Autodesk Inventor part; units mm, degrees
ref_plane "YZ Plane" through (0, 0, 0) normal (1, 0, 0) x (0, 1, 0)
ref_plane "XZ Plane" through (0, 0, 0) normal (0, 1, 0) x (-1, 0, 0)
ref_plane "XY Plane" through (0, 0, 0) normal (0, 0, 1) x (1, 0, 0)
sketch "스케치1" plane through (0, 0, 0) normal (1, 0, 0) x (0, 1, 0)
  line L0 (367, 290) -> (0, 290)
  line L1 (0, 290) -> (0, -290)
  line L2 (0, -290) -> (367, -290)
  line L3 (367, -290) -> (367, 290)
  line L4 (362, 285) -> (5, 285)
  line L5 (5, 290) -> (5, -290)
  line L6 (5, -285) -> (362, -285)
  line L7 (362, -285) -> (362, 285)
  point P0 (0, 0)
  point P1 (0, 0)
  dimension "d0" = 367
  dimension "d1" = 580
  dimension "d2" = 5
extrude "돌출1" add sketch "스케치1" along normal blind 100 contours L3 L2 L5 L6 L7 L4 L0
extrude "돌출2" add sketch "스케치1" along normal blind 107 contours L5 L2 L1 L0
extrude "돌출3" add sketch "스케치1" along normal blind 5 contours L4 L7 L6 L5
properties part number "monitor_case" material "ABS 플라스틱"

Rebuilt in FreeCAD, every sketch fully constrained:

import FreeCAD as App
import Part
import Sketcher
from FreeCAD import Vector


def add_polygon(sketch, points):
    """Adds a closed chain of lines whose ends are joined by coincident constraints."""
    first, n = sketch.GeometryCount, len(points)
    for a, b in zip(points, points[1:] + points[:1]):
        sketch.addGeometry(Part.LineSegment(App.Vector(*a, 0), App.Vector(*b, 0)), False)
    for i in range(n):
        sketch.addConstraint(Sketcher.Constraint("Coincident", first + i, 2, first + (i + 1) % n, 1))

doc = App.newDocument("Part")
body = doc.addObject("PartDesign::Body", "Body")

# Sketch on YZ plane
sketch1 = body.newObject("Sketcher::SketchObject", "Sketch")
sketch1.AttachmentSupport = (doc.getObject("YZ_Plane"), [""])
sketch1.MapMode = "FlatFace"
add_polygon(sketch1, [(367, -290), (367, 290), (5, 290), (5, 285), (362, 285), (362, -285), (5, -285), (5, -290)])  # lines 0-7
sketch1.addConstraint(Sketcher.Constraint("Vertical", 0))
sketch1.addConstraint(Sketcher.Constraint("Horizontal", 1))
sketch1.addConstraint(Sketcher.Constraint("Vertical", 2))
sketch1.addConstraint(Sketcher.Constraint("Horizontal", 3))
sketch1.addConstraint(Sketcher.Constraint("Vertical", 4))
sketch1.addConstraint(Sketcher.Constraint("Horizontal", 5))
sketch1.addConstraint(Sketcher.Constraint("Vertical", 6))
sketch1.addConstraint(Sketcher.Constraint("Horizontal", 7))
sketch1.addConstraint(Sketcher.Constraint("Symmetric", 2, 2, 5, 2, -1))
sketch1.addConstraint(Sketcher.Constraint("Equal", 2, 6))
sketch1.addConstraint(Sketcher.Constraint("DistanceY", 0, 1, 0, 2, 580.0))
sketch1.addConstraint(Sketcher.Constraint("DistanceY", 2, 2, 2, 1, 5.0))
sketch1.addConstraint(Sketcher.Constraint("DistanceX", -1, 1, 0, 2, 367.0))
sketch1.addConstraint(Sketcher.Constraint("DistanceX", -1, 1, 1, 2, 5.0))
sketch1.addConstraint(Sketcher.Constraint("DistanceX", 3, 2, 0, 2, 5.0))
pad1 = body.newObject("PartDesign::Pad", "Pad")
pad1.Profile = sketch1
pad1.Length = 100

# Sketch on YZ plane
sketch2 = body.newObject("Sketcher::SketchObject", "Sketch001")
sketch2.AttachmentSupport = (doc.getObject("YZ_Plane"), [""])
sketch2.MapMode = "FlatFace"
add_polygon(sketch2, [(5, -290), (5, 290), (0, 290), (0, -290)])  # lines 0-3
sketch2.addConstraint(Sketcher.Constraint("Vertical", 0))
sketch2.addConstraint(Sketcher.Constraint("Horizontal", 1))
sketch2.addConstraint(Sketcher.Constraint("Vertical", 2))
sketch2.addConstraint(Sketcher.Constraint("Horizontal", 3))
sketch2.addConstraint(Sketcher.Constraint("Symmetric", 1, 2, 2, 2, -1, 1))
sketch2.addConstraint(Sketcher.Constraint("DistanceX", 1, 2, 1, 1, 5.0))
sketch2.addConstraint(Sketcher.Constraint("DistanceY", 0, 1, 0, 2, 580.0))
pad2 = body.newObject("PartDesign::Pad", "Pad001")
pad2.Profile = sketch2
pad2.Length = 107

# Sketch on YZ plane
sketch3 = body.newObject("Sketcher::SketchObject", "Sketch002")
sketch3.AttachmentSupport = (doc.getObject("YZ_Plane"), [""])
sketch3.MapMode = "FlatFace"
add_polygon(sketch3, [(362, 285), (5, 285), (5, -285), (362, -285)])  # lines 0-3
sketch3.addConstraint(Sketcher.Constraint("Horizontal", 0))
sketch3.addConstraint(Sketcher.Constraint("Vertical", 1))
sketch3.addConstraint(Sketcher.Constraint("Horizontal", 2))
sketch3.addConstraint(Sketcher.Constraint("Vertical", 3))
sketch3.addConstraint(Sketcher.Constraint("DistanceX", -1, 1, 0, 2, 5.0))
sketch3.addConstraint(Sketcher.Constraint("DistanceX", 0, 2, 0, 1, 357.0))
sketch3.addConstraint(Sketcher.Constraint("DistanceY", 1, 2, 1, 1, 570.0))
sketch3.addConstraint(Sketcher.Constraint("DistanceY", -1, 1, 0, 2, 285.0))
pad3 = body.newObject("PartDesign::Pad", "Pad002")
pad3.Profile = sketch3
pad3.Length = 5

doc.recompute()
